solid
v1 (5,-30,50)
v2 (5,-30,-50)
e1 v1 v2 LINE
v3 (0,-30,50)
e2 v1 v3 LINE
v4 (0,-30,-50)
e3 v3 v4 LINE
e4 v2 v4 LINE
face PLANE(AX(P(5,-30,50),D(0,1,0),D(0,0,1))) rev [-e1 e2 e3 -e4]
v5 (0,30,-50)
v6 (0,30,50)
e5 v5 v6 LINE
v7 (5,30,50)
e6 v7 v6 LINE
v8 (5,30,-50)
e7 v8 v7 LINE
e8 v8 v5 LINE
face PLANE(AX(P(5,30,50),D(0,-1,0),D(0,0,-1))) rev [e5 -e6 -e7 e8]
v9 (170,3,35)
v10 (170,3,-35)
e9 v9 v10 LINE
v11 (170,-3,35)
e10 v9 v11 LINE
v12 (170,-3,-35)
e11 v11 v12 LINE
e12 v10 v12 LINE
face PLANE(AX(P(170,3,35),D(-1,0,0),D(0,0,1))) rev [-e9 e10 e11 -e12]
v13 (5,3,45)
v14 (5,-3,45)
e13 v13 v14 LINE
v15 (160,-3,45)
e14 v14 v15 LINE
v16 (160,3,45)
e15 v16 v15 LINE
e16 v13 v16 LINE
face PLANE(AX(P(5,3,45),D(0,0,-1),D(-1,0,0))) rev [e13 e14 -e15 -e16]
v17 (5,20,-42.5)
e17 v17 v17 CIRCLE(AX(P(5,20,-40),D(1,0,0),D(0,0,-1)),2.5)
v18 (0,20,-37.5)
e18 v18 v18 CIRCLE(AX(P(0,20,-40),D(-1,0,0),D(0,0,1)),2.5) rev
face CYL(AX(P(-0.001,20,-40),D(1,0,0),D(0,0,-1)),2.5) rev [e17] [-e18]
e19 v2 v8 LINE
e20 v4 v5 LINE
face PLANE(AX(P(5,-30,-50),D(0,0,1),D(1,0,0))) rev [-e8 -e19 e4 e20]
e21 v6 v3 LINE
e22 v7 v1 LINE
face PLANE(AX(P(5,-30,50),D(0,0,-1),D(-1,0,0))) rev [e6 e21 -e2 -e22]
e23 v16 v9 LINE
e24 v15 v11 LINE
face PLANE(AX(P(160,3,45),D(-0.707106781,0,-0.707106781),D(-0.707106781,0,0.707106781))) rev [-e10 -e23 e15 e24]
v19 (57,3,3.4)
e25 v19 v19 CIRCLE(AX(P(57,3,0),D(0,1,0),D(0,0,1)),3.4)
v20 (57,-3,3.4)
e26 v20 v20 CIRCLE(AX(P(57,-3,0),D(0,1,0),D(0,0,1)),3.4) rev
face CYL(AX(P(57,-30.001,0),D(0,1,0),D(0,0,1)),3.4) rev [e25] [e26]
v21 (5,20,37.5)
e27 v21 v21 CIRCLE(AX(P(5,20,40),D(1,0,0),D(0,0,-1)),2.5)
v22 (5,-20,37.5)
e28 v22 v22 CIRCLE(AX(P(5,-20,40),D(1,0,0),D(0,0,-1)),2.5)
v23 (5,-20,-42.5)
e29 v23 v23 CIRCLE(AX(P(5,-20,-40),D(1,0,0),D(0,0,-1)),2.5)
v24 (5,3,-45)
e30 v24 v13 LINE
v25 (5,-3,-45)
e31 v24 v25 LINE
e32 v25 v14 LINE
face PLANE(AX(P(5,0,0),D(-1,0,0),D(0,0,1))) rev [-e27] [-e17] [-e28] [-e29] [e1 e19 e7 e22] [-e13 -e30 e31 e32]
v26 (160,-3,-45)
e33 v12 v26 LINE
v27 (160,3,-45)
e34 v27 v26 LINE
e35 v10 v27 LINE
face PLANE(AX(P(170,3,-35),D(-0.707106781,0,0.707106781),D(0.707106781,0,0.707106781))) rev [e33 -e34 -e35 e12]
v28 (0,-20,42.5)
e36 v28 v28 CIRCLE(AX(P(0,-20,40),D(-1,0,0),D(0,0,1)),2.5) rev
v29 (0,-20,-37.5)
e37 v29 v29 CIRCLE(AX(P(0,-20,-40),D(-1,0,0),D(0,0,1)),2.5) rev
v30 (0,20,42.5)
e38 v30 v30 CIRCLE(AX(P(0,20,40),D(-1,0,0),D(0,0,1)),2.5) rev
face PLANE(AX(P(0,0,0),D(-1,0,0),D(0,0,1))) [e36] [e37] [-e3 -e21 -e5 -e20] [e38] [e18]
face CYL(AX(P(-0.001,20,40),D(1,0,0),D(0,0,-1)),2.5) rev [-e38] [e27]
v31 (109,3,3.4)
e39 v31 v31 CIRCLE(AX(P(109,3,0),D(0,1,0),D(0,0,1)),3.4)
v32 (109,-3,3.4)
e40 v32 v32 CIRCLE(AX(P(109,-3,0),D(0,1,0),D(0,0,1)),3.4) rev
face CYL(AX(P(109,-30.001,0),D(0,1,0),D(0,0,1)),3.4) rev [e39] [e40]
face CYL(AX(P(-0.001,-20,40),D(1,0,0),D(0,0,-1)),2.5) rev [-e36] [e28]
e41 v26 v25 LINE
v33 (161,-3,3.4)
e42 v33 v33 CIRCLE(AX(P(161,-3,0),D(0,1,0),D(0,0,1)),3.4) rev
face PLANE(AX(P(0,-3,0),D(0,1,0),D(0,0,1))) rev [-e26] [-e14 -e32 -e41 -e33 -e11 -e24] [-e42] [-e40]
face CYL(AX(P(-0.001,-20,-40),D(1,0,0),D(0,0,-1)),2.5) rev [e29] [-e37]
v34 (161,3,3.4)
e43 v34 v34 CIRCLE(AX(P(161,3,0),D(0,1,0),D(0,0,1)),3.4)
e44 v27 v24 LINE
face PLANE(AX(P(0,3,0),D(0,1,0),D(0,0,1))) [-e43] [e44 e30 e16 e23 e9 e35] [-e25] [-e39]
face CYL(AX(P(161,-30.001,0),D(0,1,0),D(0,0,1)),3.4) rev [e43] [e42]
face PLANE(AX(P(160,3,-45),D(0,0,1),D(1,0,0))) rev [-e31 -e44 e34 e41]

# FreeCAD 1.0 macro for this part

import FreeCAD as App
import Part
import Sketcher
from FreeCAD import Vector

doc = App.newDocument("Part")
body = doc.addObject("PartDesign::Body", "Body")

# Sketch on YZ plane
sketch1 = body.newObject("Sketcher::SketchObject", "Sketch")
sketch1.AttachmentSupport = (doc.getObject("YZ_Plane"), [""])
sketch1.MapMode = "FlatFace"
sketch1.addGeometry([
    Part.LineSegment(Vector(30, 50, 0), Vector(-30, 50, 0)),
    Part.LineSegment(Vector(-30, 50, 0), Vector(-30, -50, 0)),
    Part.LineSegment(Vector(-30, -50, 0), Vector(30, -50, 0)),
    Part.LineSegment(Vector(30, -50, 0), Vector(30, 50, 0)),
], False)
sketch1.addConstraint([
    Sketcher.Constraint("Coincident", 0, 2, 1, 1),
    Sketcher.Constraint("Coincident", 1, 2, 2, 1),
    Sketcher.Constraint("Coincident", 2, 2, 3, 1),
    Sketcher.Constraint("Coincident", 3, 2, 0, 1),
    Sketcher.Constraint("Horizontal", 0),
    Sketcher.Constraint("Vertical", 1),
    Sketcher.Constraint("Horizontal", 2),
    Sketcher.Constraint("Vertical", 3),
    Sketcher.Constraint("Symmetric", 0, 2, 2, 2, -1, 1),
    Sketcher.Constraint("DistanceX", 0, 2, 0, 1, 60.0),
    Sketcher.Constraint("DistanceY", 1, 2, 1, 1, 100.0),
])
pad1 = body.newObject("PartDesign::Pad", "Pad")
pad1.Profile = sketch1
pad1.Length = 5

# Sketch on YZ plane
sketch2 = body.newObject("Sketcher::SketchObject", "Sketch001")
sketch2.AttachmentSupport = (doc.getObject("YZ_Plane"), [""])
sketch2.MapMode = "FlatFace"
sketch2.AttachmentOffset = App.Placement(Vector(0, 0, 5), App.Rotation())
sketch2.addGeometry(Part.Circle(Vector(20, 40, 0), Vector(0, 0, 1), 2.5), False)
sketch2.addConstraint([
    Sketcher.Constraint("Diameter", 0, 5.0),
    Sketcher.Constraint("DistanceX", -1, 1, 0, 3, 20.0),
    Sketcher.Constraint("DistanceY", -1, 1, 0, 3, 40.0),
])
pocket1 = body.newObject("PartDesign::Pocket", "Pocket")
pocket1.Profile = sketch2
pocket1.Type = "UpToFirst"

# Sketch on YZ plane
sketch3 = body.newObject("Sketcher::SketchObject", "Sketch002")
sketch3.AttachmentSupport = (doc.getObject("YZ_Plane"), [""])
sketch3.MapMode = "FlatFace"
sketch3.AttachmentOffset = App.Placement(Vector(0, 0, 5), App.Rotation())
sketch3.addGeometry(Part.Circle(Vector(-20, 40, 0), Vector(0, 0, 1), 2.5), False)
sketch3.addConstraint([
    Sketcher.Constraint("Diameter", 0, 5.0),
    Sketcher.Constraint("DistanceX", 0, 3, -1, 1, 20.0),
    Sketcher.Constraint("DistanceY", -1, 1, 0, 3, 40.0),
])
pocket2 = body.newObject("PartDesign::Pocket", "Pocket001")
pocket2.Profile = sketch3
pocket2.Type = "UpToFirst"

# Sketch on YZ plane
sketch4 = body.newObject("Sketcher::SketchObject", "Sketch003")
sketch4.AttachmentSupport = (doc.getObject("YZ_Plane"), [""])
sketch4.MapMode = "FlatFace"
sketch4.AttachmentOffset = App.Placement(Vector(0, 0, 5), App.Rotation())
sketch4.addGeometry(Part.Circle(Vector(-20, -40, 0), Vector(0, 0, 1), 2.5), False)
sketch4.addConstraint([
    Sketcher.Constraint("Diameter", 0, 5.0),
    Sketcher.Constraint("DistanceX", 0, 3, -1, 1, 20.0),
    Sketcher.Constraint("DistanceY", 0, 3, -1, 1, 40.0),
])
pocket3 = body.newObject("PartDesign::Pocket", "Pocket002")
pocket3.Profile = sketch4
pocket3.Type = "UpToFirst"

# Sketch on YZ plane
sketch5 = body.newObject("Sketcher::SketchObject", "Sketch004")
sketch5.AttachmentSupport = (doc.getObject("YZ_Plane"), [""])
sketch5.MapMode = "FlatFace"
sketch5.AttachmentOffset = App.Placement(Vector(0, 0, 5), App.Rotation())
sketch5.addGeometry(Part.Circle(Vector(20, -40, 0), Vector(0, 0, 1), 2.5), False)
sketch5.addConstraint([
    Sketcher.Constraint("Diameter", 0, 5.0),
    Sketcher.Constraint("DistanceX", -1, 1, 0, 3, 20.0),
    Sketcher.Constraint("DistanceY", 0, 3, -1, 1, 40.0),
])
pocket4 = body.newObject("PartDesign::Pocket", "Pocket003")
pocket4.Profile = sketch5
pocket4.Type = "UpToFirst"

# Sketch on XZ plane
sketch6 = body.newObject("Sketcher::SketchObject", "Sketch005")
sketch6.AttachmentSupport = (doc.getObject("XZ_Plane"), [""])
sketch6.MapMode = "FlatFace"
sketch6.addGeometry([
    Part.LineSegment(Vector(170, -35, 0), Vector(160, -45, 0)),  # 0
    Part.LineSegment(Vector(160, -45, 0), Vector(5, -45, 0)),  # 1
    Part.LineSegment(Vector(5, -45, 0), Vector(5, 45, 0)),  # 2
    Part.LineSegment(Vector(5, 45, 0), Vector(160, 45, 0)),  # 3
    Part.LineSegment(Vector(160, 45, 0), Vector(170, 35, 0)),  # 4
    Part.LineSegment(Vector(170, 35, 0), Vector(170, -35, 0)),  # 5
], False)
sketch6.addConstraint([
    Sketcher.Constraint("Coincident", 0, 2, 1, 1),
    Sketcher.Constraint("Coincident", 1, 2, 2, 1),
    Sketcher.Constraint("Coincident", 2, 2, 3, 1),
    Sketcher.Constraint("Coincident", 3, 2, 4, 1),
    Sketcher.Constraint("Coincident", 4, 2, 5, 1),
    Sketcher.Constraint("Coincident", 5, 2, 0, 1),
    Sketcher.Constraint("Horizontal", 1),
    Sketcher.Constraint("Vertical", 2),
    Sketcher.Constraint("Horizontal", 3),
    Sketcher.Constraint("Vertical", 5),
    Sketcher.Constraint("Symmetric", 0, 2, 3, 2, -1),
    Sketcher.Constraint("Perpendicular", 0, 4),
    Sketcher.Constraint("Equal", 0, 4),
    Sketcher.Constraint("DistanceX", 1, 2, 1, 1, 155.0),
    Sketcher.Constraint("DistanceY", 2, 1, 2, 2, 90.0),
    Sketcher.Constraint("DistanceY", 5, 2, 5, 1, 70.0),
    Sketcher.Constraint("DistanceX", -1, 1, 0, 2, 160.0),
])
pad2 = body.newObject("PartDesign::Pad", "Pad001")
pad2.Profile = sketch6
pad2.Length = 6
pad2.Midplane = True

# Sketch on XZ plane
sketch7 = body.newObject("Sketcher::SketchObject", "Sketch006")
sketch7.AttachmentSupport = (doc.getObject("XZ_Plane"), [""])
sketch7.MapMode = "FlatFace"
sketch7.AttachmentOffset = App.Placement(Vector(0, 0, -3), App.Rotation())
sketch7.addGeometry(Part.Circle(Vector(57, 0, 0), Vector(0, 0, 1), 3.4), False)
sketch7.addConstraint([
    Sketcher.Constraint("PointOnObject", 0, 3, -1),
    Sketcher.Constraint("Diameter", 0, 6.8),
    Sketcher.Constraint("DistanceX", -1, 1, 0, 3, 57.0),
])
pocket5 = body.newObject("PartDesign::Pocket", "Pocket004")
pocket5.Profile = sketch7
pocket5.Type = "UpToFirst"
pocket5.Reversed = True

# Sketch on XZ plane
sketch8 = body.newObject("Sketcher::SketchObject", "Sketch007")
sketch8.AttachmentSupport = (doc.getObject("XZ_Plane"), [""])
sketch8.MapMode = "FlatFace"
sketch8.AttachmentOffset = App.Placement(Vector(0, 0, -3), App.Rotation())
sketch8.addGeometry(Part.Circle(Vector(109, 0, 0), Vector(0, 0, 1), 3.4), False)
sketch8.addConstraint([
    Sketcher.Constraint("PointOnObject", 0, 3, -1),
    Sketcher.Constraint("Diameter", 0, 6.8),
    Sketcher.Constraint("DistanceX", -1, 1, 0, 3, 109.0),
])
pocket6 = body.newObject("PartDesign::Pocket", "Pocket005")
pocket6.Profile = sketch8
pocket6.Type = "UpToFirst"
pocket6.Reversed = True

# Sketch on XZ plane
sketch9 = body.newObject("Sketcher::SketchObject", "Sketch008")
sketch9.AttachmentSupport = (doc.getObject("XZ_Plane"), [""])
sketch9.MapMode = "FlatFace"
sketch9.AttachmentOffset = App.Placement(Vector(0, 0, -3), App.Rotation())
sketch9.addGeometry(Part.Circle(Vector(161, 0, 0), Vector(0, 0, 1), 3.4), False)
sketch9.addConstraint([
    Sketcher.Constraint("PointOnObject", 0, 3, -1),
    Sketcher.Constraint("Diameter", 0, 6.8),
    Sketcher.Constraint("DistanceX", -1, 1, 0, 3, 161.0),
])
pocket7 = body.newObject("PartDesign::Pocket", "Pocket006")
pocket7.Profile = sketch9
pocket7.Type = "UpToFirst"
pocket7.Reversed = True

doc.recompute()
